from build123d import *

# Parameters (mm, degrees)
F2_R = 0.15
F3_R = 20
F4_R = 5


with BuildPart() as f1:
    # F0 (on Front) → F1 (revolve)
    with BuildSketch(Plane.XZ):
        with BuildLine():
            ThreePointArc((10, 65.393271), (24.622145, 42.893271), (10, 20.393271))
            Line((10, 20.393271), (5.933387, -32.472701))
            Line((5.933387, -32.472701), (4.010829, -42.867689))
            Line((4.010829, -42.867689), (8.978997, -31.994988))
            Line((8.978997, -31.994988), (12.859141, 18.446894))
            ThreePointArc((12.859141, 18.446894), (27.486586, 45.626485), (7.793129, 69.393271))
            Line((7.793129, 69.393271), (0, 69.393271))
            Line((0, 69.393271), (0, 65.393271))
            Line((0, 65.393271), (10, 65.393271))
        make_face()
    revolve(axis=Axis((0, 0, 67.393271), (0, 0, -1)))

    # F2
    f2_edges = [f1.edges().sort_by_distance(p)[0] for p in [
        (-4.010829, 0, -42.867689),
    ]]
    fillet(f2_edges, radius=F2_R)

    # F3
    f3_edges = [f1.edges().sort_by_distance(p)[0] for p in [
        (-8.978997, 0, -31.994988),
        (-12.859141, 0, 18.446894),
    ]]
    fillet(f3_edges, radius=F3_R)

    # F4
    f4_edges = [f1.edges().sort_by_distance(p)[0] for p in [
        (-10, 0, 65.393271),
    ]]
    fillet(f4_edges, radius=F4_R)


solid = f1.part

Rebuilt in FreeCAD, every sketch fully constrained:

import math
import FreeCAD as App
import Part
import Sketcher
from FreeCAD import Vector


def edges_at(feature, points):
    """Names of the edges that pass closest to the given points."""
    edges = feature.Shape.Edges
    near = lambda p: min(range(len(edges)), key=lambda i: edges[i].distToShape(Part.Vertex(*p))[0])
    return sorted({f"Edge{near(p) + 1}" for p in points})

doc = App.newDocument("Part")
body = doc.addObject("PartDesign::Body", "Body")

sketch1 = body.newObject("Sketcher::SketchObject", "Sketch")
sketch1.AttachmentSupport = (doc.getObject("XZ_Plane"), [""])
sketch1.MapMode = "FlatFace"
sketch1.addGeometry(Part.ArcOfCircle(Part.Circle(Vector(0.000001, 42.893271, 0), Vector(0, 0, 1), 24.622144), math.radians(-66.037513), math.radians(66.037513)), False)
sketch1.addGeometry(Part.LineSegment(Vector(10, 20.393271, 0), Vector(5.933387, -32.472701, 0)), False)
sketch1.addGeometry(Part.LineSegment(Vector(5.933387, -32.472701, 0), Vector(4.010829, -42.867689, 0)), False)
sketch1.addGeometry(Part.LineSegment(Vector(4.010829, -42.867689, 0), Vector(8.978997, -31.994988, 0)), False)
sketch1.addGeometry(Part.LineSegment(Vector(8.978997, -31.994988, 0), Vector(12.859141, 18.446894, 0)), False)
sketch1.addGeometry(Part.ArcOfCircle(Part.Circle(Vector(0, 42.893271, 0), Vector(0, 0, 1), 27.622144), math.radians(-62.254994), math.radians(73.612428)), False)
sketch1.addGeometry(Part.LineSegment(Vector(7.793129, 69.393271, 0), Vector(0, 69.393271, 0)), False)
sketch1.addGeometry(Part.LineSegment(Vector(0, 69.393271, 0), Vector(0, 65.393271, 0)), False)
sketch1.addGeometry(Part.LineSegment(Vector(0, 65.393271, 0), Vector(10, 65.393271, 0)), False)
sketch1.addConstraint(Sketcher.Constraint("Coincident", 0, 1, 1, 1))
sketch1.addConstraint(Sketcher.Constraint("Coincident", 1, 2, 2, 1))
sketch1.addConstraint(Sketcher.Constraint("Coincident", 2, 2, 3, 1))
sketch1.addConstraint(Sketcher.Constraint("Coincident", 3, 2, 4, 1))
sketch1.addConstraint(Sketcher.Constraint("Coincident", 4, 2, 5, 1))
sketch1.addConstraint(Sketcher.Constraint("Coincident", 5, 2, 6, 1))
sketch1.addConstraint(Sketcher.Constraint("Coincident", 6, 2, 7, 1))
sketch1.addConstraint(Sketcher.Constraint("Coincident", 7, 2, 8, 1))
sketch1.addConstraint(Sketcher.Constraint("Coincident", 8, 2, 0, 2))
sketch1.addConstraint(Sketcher.Constraint("Horizontal", 6))
sketch1.addConstraint(Sketcher.Constraint("Vertical", 7))
sketch1.addConstraint(Sketcher.Constraint("Horizontal", 8))
sketch1.addConstraint(Sketcher.Constraint("Coincident", 5, 3, 0, 3))
sketch1.addConstraint(Sketcher.Constraint("PointOnObject", 0, 3, -2))
sketch1.addConstraint(Sketcher.Constraint("PointOnObject", 6, 2, -2))
sketch1.addConstraint(Sketcher.Constraint("Parallel", 1, 4))
sketch1.addConstraint(Sketcher.Constraint("Vertical", 0, 1, 8, 2))
sketch1.addConstraint(Sketcher.Constraint("DistanceX", 8, 1, 8, 2, 10.0))
sketch1.addConstraint(Sketcher.Constraint("DistanceY", 7, 2, 7, 1, 4.0))
sketch1.addConstraint(Sketcher.Constraint("DistanceY", 0, 1, 5, 2, 49.0))
sketch1.addConstraint(Sketcher.Constraint("Radius", 5, 27.622144))
sketch1.addConstraint(Sketcher.Constraint("Distance", 4, 50.590898))
sketch1.addConstraint(Sketcher.Constraint("DistanceY", 1, 2, -1, 1, 32.472701))
sketch1.addConstraint(Sketcher.Constraint("DistanceY", 2, 2, 3, 2, 10.872701))
sketch1.addConstraint(Sketcher.Constraint("Distance", 1, 53.022149))
sketch1.addConstraint(Sketcher.Constraint("Distance", 3, 11.954009))
sketch1.addConstraint(Sketcher.Constraint("DistanceY", -1, 1, 0, 3, 42.893271))
sketch1.addConstraint(Sketcher.Constraint("DistanceX", -1, 1, 2, 2, 4.010829))
revolution = body.newObject("PartDesign::Revolution", "Revolution")
revolution.Profile = sketch1
revolution.ReferenceAxis = (sketch1, ["V_Axis"])
revolution.Angle = 360
doc.recompute()

fillet = body.newObject("PartDesign::Fillet", "Fillet")
fillet.Base = (revolution, edges_at(revolution, [(-4.011, 0, -42.868)]))
fillet.Radius = 0.15
doc.recompute()

fillet2 = body.newObject("PartDesign::Fillet", "Fillet001")
fillet2.Base = (fillet, edges_at(fillet, [(-8.979, 0, -31.995), (-12.859, 0, 18.447)]))
fillet2.Radius = 20
doc.recompute()

fillet3 = body.newObject("PartDesign::Fillet", "Fillet002")
fillet3.Base = (fillet2, edges_at(fillet2, [(-10, 0, 65.393)]))
fillet3.Radius = 5

doc.recompute()
